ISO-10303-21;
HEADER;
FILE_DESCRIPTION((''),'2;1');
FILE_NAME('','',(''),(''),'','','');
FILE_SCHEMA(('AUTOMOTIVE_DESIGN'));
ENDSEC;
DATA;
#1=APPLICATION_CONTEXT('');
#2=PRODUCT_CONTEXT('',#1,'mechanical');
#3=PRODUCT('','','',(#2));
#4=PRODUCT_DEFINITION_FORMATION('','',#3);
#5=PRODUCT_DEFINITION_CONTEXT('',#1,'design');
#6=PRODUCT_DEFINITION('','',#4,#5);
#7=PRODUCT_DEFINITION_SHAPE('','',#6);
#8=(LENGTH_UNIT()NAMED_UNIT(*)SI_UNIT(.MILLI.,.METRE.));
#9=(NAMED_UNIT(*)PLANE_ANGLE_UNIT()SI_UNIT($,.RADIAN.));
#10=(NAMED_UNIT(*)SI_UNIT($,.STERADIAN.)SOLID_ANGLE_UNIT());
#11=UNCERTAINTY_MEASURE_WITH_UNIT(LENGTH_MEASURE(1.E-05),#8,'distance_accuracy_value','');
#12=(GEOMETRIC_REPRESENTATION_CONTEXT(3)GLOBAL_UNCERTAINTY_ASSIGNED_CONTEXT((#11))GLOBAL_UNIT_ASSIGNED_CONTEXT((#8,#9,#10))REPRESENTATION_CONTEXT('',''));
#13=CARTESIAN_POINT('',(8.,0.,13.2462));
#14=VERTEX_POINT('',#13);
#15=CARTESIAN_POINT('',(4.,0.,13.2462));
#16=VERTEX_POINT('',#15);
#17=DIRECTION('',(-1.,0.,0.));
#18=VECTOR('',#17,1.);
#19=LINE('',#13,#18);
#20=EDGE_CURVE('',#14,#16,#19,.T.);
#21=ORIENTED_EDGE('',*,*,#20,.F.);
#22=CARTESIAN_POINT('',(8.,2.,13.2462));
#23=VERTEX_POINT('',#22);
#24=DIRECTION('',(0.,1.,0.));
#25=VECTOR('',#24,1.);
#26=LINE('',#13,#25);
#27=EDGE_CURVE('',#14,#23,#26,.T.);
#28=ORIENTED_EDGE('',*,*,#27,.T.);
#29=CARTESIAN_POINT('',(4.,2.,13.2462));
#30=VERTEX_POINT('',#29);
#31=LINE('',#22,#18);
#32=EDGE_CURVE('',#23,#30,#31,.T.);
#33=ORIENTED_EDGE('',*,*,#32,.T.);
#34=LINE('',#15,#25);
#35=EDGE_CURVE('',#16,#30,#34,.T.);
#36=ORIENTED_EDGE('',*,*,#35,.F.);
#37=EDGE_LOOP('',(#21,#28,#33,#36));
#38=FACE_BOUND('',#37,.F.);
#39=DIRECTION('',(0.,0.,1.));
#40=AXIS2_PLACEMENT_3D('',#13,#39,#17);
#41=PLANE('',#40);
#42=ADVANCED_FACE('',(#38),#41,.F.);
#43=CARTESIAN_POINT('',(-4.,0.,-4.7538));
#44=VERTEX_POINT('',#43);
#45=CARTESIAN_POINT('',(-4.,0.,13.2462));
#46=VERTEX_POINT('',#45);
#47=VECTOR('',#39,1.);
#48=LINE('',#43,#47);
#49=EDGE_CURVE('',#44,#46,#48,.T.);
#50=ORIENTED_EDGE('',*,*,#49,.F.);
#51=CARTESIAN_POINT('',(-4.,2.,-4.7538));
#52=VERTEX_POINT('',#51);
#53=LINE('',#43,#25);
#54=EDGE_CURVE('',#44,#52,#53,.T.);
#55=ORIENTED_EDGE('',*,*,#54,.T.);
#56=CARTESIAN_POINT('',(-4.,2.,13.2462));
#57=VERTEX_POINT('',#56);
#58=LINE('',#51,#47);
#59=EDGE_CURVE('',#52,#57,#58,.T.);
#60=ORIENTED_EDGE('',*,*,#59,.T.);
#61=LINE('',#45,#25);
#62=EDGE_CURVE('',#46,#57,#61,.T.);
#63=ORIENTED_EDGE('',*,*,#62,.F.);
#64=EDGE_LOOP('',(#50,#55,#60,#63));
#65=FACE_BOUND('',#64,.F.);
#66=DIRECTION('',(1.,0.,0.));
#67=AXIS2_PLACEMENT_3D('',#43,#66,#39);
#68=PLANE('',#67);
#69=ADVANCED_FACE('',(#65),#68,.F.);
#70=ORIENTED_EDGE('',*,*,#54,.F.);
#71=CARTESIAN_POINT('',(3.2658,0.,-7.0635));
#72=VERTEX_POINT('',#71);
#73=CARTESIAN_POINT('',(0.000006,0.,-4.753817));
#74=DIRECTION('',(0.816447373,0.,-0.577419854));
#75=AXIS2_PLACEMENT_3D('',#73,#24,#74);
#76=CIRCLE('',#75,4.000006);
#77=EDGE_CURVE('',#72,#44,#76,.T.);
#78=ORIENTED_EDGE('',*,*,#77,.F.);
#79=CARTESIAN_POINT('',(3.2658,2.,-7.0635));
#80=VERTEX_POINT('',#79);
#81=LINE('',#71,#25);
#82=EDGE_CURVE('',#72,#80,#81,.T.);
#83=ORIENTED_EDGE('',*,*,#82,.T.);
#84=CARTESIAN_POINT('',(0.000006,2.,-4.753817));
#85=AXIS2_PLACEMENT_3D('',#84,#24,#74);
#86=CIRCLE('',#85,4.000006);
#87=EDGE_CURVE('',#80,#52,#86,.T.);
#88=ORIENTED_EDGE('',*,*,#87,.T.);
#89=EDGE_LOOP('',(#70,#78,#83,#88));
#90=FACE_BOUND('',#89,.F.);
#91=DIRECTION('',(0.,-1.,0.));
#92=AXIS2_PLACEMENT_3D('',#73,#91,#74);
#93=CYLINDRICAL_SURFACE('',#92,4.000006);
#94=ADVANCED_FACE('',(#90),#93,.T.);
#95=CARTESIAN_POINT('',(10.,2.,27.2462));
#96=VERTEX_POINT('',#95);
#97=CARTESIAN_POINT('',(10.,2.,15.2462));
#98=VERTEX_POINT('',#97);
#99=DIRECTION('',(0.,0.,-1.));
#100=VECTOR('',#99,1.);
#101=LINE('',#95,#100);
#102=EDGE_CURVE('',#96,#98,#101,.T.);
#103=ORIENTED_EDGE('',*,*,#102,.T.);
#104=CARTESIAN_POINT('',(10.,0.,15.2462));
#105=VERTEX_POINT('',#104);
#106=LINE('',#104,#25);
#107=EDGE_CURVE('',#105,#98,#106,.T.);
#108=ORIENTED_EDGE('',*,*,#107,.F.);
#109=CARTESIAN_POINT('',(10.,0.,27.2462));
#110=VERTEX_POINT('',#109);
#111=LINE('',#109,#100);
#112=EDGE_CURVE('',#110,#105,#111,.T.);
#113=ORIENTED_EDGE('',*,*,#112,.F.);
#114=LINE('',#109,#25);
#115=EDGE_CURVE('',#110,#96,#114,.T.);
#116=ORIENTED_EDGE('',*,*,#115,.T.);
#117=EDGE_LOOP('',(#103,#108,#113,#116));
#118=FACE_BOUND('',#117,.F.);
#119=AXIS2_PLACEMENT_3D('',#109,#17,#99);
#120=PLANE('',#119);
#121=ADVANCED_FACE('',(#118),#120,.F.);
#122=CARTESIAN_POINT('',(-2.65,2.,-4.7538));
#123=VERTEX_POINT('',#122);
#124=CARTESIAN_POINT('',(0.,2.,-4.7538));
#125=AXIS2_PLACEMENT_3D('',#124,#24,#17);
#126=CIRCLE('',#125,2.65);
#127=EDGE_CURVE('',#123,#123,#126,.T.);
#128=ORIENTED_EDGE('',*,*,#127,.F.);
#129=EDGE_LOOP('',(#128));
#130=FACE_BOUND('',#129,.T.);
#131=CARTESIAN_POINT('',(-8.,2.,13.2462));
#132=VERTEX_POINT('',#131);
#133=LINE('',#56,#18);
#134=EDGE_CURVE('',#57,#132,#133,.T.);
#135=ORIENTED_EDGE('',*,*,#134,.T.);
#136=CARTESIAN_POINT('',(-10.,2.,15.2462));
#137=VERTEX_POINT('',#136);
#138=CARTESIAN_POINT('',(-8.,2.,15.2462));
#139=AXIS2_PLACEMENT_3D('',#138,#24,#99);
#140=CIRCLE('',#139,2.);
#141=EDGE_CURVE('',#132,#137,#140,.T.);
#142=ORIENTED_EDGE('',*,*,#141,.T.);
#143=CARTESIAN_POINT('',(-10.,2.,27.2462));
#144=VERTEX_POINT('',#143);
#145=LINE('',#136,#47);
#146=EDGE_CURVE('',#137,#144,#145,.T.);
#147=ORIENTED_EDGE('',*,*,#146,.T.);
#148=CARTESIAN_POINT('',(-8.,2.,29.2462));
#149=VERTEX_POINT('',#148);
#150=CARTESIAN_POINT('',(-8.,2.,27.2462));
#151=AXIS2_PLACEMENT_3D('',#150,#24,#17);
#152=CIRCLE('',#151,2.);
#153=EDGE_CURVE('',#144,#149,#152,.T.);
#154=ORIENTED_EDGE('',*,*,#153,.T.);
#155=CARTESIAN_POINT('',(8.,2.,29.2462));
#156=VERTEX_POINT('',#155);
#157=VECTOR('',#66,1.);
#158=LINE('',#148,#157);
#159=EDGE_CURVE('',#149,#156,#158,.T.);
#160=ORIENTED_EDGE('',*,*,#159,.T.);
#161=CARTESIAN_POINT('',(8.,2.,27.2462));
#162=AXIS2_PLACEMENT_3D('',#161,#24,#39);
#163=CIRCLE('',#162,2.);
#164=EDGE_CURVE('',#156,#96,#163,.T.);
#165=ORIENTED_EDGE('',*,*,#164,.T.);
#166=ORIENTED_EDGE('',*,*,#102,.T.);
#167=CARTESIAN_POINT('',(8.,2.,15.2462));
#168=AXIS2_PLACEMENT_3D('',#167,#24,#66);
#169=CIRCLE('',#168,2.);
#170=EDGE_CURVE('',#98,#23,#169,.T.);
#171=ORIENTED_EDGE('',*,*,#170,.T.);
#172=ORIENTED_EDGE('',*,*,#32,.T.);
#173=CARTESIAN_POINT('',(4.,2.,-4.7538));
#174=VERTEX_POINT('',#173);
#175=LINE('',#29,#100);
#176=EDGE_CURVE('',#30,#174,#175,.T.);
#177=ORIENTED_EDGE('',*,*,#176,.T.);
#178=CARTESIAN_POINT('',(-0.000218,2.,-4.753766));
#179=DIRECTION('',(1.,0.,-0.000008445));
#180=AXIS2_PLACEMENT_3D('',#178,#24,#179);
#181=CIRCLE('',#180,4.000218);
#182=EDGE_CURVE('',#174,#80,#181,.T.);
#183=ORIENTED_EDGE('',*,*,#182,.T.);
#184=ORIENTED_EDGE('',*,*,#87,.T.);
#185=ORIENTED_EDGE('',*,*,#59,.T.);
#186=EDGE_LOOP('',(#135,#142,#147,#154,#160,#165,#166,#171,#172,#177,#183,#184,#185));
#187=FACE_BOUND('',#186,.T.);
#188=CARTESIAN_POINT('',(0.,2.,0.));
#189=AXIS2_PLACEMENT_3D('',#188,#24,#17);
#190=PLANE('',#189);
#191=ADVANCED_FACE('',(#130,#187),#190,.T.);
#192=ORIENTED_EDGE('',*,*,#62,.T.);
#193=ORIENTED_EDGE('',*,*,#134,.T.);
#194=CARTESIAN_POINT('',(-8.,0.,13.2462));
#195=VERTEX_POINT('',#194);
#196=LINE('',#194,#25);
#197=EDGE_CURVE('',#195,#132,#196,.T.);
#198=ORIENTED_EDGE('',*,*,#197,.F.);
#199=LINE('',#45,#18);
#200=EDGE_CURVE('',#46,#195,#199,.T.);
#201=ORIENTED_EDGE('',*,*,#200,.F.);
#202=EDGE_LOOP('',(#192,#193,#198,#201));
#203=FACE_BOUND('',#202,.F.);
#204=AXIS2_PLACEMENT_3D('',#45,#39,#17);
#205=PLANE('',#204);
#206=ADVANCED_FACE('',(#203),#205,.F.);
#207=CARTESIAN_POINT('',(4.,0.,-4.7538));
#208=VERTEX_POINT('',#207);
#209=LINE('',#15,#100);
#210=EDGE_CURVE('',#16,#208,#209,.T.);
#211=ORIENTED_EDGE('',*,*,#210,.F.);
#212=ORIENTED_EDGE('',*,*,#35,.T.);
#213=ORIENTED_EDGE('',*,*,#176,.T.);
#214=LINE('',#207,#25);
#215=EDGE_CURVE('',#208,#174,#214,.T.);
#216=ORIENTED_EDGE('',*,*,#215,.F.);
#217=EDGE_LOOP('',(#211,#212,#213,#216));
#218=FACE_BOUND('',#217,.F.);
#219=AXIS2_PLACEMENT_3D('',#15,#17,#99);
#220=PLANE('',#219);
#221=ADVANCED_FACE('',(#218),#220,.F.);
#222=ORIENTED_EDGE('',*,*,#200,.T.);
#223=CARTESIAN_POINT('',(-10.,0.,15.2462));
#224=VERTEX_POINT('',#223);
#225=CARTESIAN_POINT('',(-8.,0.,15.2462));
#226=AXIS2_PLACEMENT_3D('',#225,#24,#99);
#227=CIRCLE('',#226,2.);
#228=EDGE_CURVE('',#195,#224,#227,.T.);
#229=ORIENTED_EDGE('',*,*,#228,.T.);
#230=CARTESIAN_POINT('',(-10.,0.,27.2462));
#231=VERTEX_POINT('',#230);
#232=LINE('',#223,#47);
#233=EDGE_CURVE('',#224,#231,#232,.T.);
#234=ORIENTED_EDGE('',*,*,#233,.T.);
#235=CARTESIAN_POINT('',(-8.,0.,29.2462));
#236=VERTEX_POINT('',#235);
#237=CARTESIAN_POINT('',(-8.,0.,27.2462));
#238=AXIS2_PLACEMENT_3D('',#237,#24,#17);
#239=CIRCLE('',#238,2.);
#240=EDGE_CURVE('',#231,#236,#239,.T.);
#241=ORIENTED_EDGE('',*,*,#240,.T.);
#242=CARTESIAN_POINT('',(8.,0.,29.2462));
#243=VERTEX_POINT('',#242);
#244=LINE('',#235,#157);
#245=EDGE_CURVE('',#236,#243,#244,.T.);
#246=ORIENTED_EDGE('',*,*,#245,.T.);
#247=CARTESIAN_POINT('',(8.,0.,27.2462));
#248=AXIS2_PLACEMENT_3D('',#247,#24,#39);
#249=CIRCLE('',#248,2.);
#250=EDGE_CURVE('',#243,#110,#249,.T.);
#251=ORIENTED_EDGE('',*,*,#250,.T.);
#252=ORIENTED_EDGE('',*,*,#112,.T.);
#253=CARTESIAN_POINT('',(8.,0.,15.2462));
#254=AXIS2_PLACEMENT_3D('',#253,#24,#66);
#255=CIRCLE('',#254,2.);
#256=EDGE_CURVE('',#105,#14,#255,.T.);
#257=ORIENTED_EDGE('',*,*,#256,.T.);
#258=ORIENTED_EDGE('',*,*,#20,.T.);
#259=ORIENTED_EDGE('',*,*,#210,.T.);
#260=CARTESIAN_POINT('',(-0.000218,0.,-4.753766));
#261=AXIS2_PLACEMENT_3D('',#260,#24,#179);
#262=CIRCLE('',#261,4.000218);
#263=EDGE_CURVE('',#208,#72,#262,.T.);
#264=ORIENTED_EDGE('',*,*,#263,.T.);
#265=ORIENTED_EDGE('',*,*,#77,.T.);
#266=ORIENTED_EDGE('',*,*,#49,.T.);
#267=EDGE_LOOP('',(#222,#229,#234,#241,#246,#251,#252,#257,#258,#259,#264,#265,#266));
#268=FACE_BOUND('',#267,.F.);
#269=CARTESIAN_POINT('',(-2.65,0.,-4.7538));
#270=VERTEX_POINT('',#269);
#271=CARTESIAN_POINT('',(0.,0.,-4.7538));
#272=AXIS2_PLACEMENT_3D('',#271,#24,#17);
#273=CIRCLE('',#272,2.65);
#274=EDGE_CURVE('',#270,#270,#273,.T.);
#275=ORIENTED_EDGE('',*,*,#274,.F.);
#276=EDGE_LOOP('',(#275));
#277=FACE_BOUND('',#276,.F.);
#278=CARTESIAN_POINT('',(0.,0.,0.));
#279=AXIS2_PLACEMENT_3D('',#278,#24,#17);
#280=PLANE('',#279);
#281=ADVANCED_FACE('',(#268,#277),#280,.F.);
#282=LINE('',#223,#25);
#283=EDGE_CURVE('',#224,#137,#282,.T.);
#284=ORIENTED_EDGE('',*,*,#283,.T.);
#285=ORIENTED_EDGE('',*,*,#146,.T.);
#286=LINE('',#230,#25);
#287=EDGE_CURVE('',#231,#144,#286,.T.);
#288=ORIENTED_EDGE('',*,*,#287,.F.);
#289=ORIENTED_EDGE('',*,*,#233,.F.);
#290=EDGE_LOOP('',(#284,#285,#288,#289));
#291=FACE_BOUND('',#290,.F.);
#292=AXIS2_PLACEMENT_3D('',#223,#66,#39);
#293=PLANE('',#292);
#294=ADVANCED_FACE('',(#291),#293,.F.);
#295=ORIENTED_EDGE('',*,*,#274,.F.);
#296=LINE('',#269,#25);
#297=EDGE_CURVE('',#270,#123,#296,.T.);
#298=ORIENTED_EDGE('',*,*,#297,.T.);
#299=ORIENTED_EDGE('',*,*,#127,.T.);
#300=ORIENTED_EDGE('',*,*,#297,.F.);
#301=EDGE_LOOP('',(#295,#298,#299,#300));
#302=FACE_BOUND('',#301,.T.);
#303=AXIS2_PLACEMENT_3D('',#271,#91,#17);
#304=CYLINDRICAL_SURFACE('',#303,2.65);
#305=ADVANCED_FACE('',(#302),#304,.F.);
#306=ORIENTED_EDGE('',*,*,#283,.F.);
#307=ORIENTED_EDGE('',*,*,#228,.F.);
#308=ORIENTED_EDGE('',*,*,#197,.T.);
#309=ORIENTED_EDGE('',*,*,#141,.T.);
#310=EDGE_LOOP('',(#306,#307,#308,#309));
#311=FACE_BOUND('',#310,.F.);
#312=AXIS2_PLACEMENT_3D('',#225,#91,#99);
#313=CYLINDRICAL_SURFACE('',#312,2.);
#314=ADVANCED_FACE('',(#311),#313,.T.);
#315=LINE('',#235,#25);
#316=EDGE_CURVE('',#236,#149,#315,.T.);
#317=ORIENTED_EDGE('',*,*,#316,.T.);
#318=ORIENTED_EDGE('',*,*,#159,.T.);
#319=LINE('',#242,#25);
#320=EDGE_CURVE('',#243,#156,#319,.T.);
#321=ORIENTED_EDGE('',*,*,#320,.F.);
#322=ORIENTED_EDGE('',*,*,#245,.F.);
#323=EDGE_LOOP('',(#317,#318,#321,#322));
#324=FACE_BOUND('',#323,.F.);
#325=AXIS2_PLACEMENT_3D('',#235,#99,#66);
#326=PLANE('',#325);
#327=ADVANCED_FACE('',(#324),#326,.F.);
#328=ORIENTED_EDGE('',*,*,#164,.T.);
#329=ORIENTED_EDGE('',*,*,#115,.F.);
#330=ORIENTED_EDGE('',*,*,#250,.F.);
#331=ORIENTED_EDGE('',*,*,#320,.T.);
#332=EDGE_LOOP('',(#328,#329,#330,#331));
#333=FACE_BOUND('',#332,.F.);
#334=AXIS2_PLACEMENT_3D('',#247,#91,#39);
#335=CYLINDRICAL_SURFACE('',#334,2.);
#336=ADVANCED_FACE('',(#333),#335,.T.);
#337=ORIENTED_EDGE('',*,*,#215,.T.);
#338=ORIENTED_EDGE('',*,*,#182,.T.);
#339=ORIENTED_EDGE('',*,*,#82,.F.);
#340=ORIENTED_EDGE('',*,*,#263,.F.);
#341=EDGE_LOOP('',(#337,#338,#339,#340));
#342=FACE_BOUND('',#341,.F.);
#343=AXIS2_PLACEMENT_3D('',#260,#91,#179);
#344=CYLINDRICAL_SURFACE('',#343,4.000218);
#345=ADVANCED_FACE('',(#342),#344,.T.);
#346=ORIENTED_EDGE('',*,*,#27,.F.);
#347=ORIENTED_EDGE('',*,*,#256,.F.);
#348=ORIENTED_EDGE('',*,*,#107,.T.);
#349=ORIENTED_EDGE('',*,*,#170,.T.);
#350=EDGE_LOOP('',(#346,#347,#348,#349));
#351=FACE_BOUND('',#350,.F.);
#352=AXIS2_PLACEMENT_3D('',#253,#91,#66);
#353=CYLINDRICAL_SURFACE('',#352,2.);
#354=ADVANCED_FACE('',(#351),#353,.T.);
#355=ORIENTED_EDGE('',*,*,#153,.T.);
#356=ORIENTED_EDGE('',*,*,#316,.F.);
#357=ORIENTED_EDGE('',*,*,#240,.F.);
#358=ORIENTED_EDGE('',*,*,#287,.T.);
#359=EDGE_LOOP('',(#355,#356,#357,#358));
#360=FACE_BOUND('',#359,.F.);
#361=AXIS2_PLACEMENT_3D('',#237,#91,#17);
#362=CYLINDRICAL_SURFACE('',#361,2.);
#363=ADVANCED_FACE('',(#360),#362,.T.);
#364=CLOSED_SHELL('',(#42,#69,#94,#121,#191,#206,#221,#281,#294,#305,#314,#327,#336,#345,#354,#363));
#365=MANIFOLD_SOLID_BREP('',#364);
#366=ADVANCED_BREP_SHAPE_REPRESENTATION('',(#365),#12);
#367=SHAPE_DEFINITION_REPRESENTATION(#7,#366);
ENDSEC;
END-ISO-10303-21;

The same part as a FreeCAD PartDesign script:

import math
import FreeCAD as App
import Part
import Sketcher

doc = App.newDocument("Part")
body = doc.addObject("PartDesign::Body", "Body")

# Sketch on XZ plane
sketch1 = body.newObject("Sketcher::SketchObject", "Sketch")
sketch1.AttachmentSupport = (doc.getObject("XZ_Plane"), [""])
sketch1.MapMode = "FlatFace"
sketch1.addGeometry(Part.ArcOfCircle(Part.Circle(App.Vector(0, -4.7538, 0), App.Vector(0, 0, 1), 4.00002), math.radians(-35.269427), math.radians(0)), False)
sketch1.addGeometry(Part.ArcOfCircle(Part.Circle(App.Vector(0, -4.7538, 0), App.Vector(0, 0, 1), 4), math.radians(180), math.radians(324.730573)), False)
sketch1.addGeometry(Part.LineSegment(App.Vector(-4, -4.7538, 0), App.Vector(-4, 13.2462, 0)), False)
sketch1.addGeometry(Part.LineSegment(App.Vector(-4, 13.2462, 0), App.Vector(-8, 13.2462, 0)), False)
sketch1.addGeometry(Part.ArcOfCircle(Part.Circle(App.Vector(-8, 15.2462, 0), App.Vector(0, 0, 1), 2), math.radians(180), math.radians(270)), False)
sketch1.addGeometry(Part.LineSegment(App.Vector(-10, 15.2462, 0), App.Vector(-10, 27.2462, 0)), False)
sketch1.addGeometry(Part.ArcOfCircle(Part.Circle(App.Vector(-8, 27.2462, 0), App.Vector(0, 0, 1), 2), math.radians(90), math.radians(180)), False)
sketch1.addGeometry(Part.LineSegment(App.Vector(-8, 29.2462, 0), App.Vector(8, 29.2462, 0)), False)
sketch1.addGeometry(Part.ArcOfCircle(Part.Circle(App.Vector(8, 27.2462, 0), App.Vector(0, 0, 1), 2), math.radians(0), math.radians(90)), False)
sketch1.addGeometry(Part.LineSegment(App.Vector(10, 27.2462, 0), App.Vector(10, 15.2462, 0)), False)
sketch1.addGeometry(Part.ArcOfCircle(Part.Circle(App.Vector(8, 15.2462, 0), App.Vector(0, 0, 1), 2), math.radians(-90), math.radians(0)), False)
sketch1.addGeometry(Part.LineSegment(App.Vector(8, 13.2462, 0), App.Vector(4, 13.2462, 0)), False)
sketch1.addGeometry(Part.LineSegment(App.Vector(4, 13.2462, 0), App.Vector(4, -4.7538, 0)), False)
sketch1.addGeometry(Part.Circle(App.Vector(0, -4.7538, 0), App.Vector(0, 0, 1), 2.65), False)
sketch1.addConstraint(Sketcher.Constraint("Tangent", 0, 1, 1, 2))
sketch1.addConstraint(Sketcher.Constraint("Tangent", 1, 1, 2, 1))
sketch1.addConstraint(Sketcher.Constraint("Coincident", 2, 2, 3, 1))
sketch1.addConstraint(Sketcher.Constraint("Tangent", 3, 2, 4, 2))
sketch1.addConstraint(Sketcher.Constraint("Tangent", 4, 1, 5, 1))
sketch1.addConstraint(Sketcher.Constraint("Tangent", 5, 2, 6, 2))
sketch1.addConstraint(Sketcher.Constraint("Tangent", 6, 1, 7, 1))
sketch1.addConstraint(Sketcher.Constraint("Tangent", 7, 2, 8, 2))
sketch1.addConstraint(Sketcher.Constraint("Tangent", 8, 1, 9, 1))
sketch1.addConstraint(Sketcher.Constraint("Tangent", 9, 2, 10, 2))
sketch1.addConstraint(Sketcher.Constraint("Tangent", 10, 1, 11, 1))
sketch1.addConstraint(Sketcher.Constraint("Coincident", 11, 2, 12, 1))
sketch1.addConstraint(Sketcher.Constraint("Tangent", 12, 2, 0, 2))
sketch1.addConstraint(Sketcher.Constraint("Vertical", 2))
sketch1.addConstraint(Sketcher.Constraint("Horizontal", 3))
sketch1.addConstraint(Sketcher.Constraint("Vertical", 5))
sketch1.addConstraint(Sketcher.Constraint("Horizontal", 7))
sketch1.addConstraint(Sketcher.Constraint("Vertical", 9))
sketch1.addConstraint(Sketcher.Constraint("Horizontal", 11))
sketch1.addConstraint(Sketcher.Constraint("Vertical", 12))
sketch1.addConstraint(Sketcher.Constraint("Coincident", 13, 3, 0, 3))
sketch1.addConstraint(Sketcher.Constraint("Equal", 0, 1))
sketch1.addConstraint(Sketcher.Constraint("Equal", 4, 6))
sketch1.addConstraint(Sketcher.Constraint("Equal", 6, 8))
sketch1.addConstraint(Sketcher.Constraint("Equal", 8, 10))
sketch1.addConstraint(Sketcher.Constraint("Symmetric", 4, 3, 10, 3, -2))
sketch1.addConstraint(Sketcher.Constraint("PointOnObject", 0, 3, -2))
sketch1.addConstraint(Sketcher.Constraint("Radius", 0, 4.0))
sketch1.addConstraint(Sketcher.Constraint("Radius", 4, 2.0))
sketch1.addConstraint(Sketcher.Constraint("Diameter", 13, 5.3))
sketch1.addConstraint(Sketcher.Constraint("DistanceX", 3, 2, 3, 1, 4.0))
sketch1.addConstraint(Sketcher.Constraint("DistanceY", 2, 1, 2, 2, 18.0))
sketch1.addConstraint(Sketcher.Constraint("DistanceY", 3, 2, 6, 1, 16.0))
sketch1.addConstraint(Sketcher.Constraint("DistanceY", 0, 3, -1, 1, 4.7538))
sketch1.addConstraint(Sketcher.Constraint("DistanceX", -1, 1, 0, 1, 3.2658))
pad1 = body.newObject("PartDesign::Pad", "Pad")
pad1.Profile = sketch1
pad1.Length = 2
pad1.Reversed = True

doc.recompute()
